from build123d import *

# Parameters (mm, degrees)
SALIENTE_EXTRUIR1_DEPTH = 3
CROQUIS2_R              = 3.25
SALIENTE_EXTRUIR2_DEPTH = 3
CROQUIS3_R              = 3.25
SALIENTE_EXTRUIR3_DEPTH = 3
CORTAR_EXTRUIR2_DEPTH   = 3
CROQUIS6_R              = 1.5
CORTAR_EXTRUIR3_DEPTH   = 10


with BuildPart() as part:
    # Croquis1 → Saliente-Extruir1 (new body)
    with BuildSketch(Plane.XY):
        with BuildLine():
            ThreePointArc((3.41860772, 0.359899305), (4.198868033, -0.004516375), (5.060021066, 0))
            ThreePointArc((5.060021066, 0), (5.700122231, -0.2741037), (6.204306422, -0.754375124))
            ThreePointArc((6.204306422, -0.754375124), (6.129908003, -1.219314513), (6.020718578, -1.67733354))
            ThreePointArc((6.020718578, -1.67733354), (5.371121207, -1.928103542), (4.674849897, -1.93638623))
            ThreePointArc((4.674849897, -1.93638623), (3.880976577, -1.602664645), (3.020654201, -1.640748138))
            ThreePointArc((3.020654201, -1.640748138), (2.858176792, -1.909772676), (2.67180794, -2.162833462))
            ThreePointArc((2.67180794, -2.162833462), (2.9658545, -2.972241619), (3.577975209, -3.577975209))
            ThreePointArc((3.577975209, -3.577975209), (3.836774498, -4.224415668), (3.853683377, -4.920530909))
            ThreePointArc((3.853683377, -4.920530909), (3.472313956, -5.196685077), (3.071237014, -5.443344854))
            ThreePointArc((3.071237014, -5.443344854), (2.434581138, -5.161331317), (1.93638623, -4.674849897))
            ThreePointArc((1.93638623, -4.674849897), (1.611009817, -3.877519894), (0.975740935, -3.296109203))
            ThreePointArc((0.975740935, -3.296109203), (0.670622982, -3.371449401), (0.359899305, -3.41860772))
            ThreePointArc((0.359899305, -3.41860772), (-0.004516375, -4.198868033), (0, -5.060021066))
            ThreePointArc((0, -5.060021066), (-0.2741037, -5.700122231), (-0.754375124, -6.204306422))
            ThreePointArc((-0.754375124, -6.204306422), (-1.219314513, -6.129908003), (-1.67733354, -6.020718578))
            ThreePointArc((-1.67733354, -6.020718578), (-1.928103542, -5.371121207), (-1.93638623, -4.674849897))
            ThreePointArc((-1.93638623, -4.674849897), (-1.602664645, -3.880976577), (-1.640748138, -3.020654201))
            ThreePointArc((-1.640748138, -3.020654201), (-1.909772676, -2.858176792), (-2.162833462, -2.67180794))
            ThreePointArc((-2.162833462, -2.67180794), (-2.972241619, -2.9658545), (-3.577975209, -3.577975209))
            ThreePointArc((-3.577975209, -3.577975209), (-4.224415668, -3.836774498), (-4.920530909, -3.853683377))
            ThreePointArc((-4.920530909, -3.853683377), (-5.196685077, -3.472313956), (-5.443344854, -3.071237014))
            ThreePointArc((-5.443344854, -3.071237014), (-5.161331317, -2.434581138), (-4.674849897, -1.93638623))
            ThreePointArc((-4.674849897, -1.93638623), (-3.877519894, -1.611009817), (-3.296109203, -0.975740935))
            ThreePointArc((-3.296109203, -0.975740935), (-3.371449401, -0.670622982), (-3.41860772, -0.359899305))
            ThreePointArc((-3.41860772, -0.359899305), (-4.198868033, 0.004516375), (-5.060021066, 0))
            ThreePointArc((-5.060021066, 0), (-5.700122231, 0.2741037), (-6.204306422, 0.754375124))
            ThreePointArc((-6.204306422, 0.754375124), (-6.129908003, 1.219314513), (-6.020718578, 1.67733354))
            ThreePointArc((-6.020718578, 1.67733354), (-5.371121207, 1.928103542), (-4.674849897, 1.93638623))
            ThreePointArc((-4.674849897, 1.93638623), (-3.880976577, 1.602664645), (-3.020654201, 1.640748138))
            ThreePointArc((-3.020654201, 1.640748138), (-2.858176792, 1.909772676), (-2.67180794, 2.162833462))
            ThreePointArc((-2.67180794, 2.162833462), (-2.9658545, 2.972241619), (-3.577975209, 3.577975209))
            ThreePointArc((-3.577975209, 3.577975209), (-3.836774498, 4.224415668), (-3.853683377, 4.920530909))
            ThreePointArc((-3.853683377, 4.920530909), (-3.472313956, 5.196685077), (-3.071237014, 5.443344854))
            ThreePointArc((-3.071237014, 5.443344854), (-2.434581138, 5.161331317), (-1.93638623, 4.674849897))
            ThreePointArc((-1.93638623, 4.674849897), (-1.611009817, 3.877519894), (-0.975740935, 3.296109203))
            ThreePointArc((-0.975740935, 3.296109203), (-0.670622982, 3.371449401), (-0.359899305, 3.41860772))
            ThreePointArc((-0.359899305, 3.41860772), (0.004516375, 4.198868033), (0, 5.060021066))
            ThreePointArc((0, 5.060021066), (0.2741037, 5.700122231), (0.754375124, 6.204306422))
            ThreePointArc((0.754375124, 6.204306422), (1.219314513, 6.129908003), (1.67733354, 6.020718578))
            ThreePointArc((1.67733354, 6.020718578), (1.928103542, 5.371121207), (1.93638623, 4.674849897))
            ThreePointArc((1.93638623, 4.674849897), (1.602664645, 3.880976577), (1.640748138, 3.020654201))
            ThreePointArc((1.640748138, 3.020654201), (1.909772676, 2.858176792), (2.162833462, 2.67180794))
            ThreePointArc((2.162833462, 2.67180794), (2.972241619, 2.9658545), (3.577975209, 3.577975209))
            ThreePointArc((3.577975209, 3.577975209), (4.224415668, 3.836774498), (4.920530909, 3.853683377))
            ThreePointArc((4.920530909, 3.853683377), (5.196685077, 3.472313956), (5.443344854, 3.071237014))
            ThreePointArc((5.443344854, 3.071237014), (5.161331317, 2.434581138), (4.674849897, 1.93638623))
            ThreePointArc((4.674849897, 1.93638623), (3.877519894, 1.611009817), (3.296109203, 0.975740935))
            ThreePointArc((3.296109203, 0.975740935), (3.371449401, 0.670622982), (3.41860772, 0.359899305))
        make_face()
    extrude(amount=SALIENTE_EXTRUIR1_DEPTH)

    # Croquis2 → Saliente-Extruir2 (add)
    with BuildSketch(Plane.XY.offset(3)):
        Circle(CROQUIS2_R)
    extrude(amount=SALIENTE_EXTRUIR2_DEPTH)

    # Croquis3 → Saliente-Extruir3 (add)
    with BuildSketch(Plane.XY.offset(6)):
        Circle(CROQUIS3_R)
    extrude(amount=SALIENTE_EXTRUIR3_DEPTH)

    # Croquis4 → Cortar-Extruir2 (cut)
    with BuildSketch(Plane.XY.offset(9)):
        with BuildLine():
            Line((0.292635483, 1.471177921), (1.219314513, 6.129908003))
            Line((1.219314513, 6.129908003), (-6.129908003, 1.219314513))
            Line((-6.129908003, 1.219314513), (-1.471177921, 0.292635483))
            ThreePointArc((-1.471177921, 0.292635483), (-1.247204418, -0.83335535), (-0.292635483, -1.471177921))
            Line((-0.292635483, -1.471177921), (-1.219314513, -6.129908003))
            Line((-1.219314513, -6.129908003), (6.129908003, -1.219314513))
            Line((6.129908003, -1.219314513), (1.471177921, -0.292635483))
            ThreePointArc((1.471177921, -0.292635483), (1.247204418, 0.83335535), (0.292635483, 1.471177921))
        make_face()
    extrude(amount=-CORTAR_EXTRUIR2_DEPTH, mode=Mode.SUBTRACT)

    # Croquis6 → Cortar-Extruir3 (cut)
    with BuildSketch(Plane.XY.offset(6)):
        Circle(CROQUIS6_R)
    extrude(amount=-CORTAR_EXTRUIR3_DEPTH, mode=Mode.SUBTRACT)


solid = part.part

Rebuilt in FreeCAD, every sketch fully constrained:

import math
import FreeCAD as App
import Part
import Sketcher
Q = App.Units.Quantity

doc = App.newDocument("Part")
body = doc.addObject("PartDesign::Body", "Body")

# Sketch on XY plane
sketch1 = body.newObject("Sketcher::SketchObject", "Sketch")
sketch1.AttachmentSupport = (doc.getObject("XY_Plane"), [""])
sketch1.MapMode = "FlatFace"
sketch1.addGeometry([
    Part.ArcOfCircle(Part.Circle(App.Vector(4.6, 1.9, 0), App.Vector(0, 0, 1), 2), math.radians(-128), math.radians(-77)),  # 0
    Part.ArcOfCircle(Part.Circle(App.Vector(0, 0, 0), App.Vector(0, 0, 1), 3.4), math.radians(6.01), math.radians(16.49)),  # 1
    Part.ArcOfCircle(Part.Circle(App.Vector(5, 0, 0), App.Vector(0, 0, 1), 2), math.radians(100), math.radians(150)),  # 2
    Part.ArcOfCircle(Part.Circle(App.Vector(3.5, 3.5, 0), App.Vector(0, 0, 1), 2), math.radians(-55), math.radians(-14)),  # 3
    Part.ArcOfCircle(Part.Circle(App.Vector(0, 0, 0), App.Vector(0, 0, 1), 6.2), math.radians(29.43), math.radians(38.07)),  # 4
    Part.ArcOfCircle(Part.Circle(App.Vector(4.6, 1.9, 0), App.Vector(0, 0, 1), 2), math.radians(81), math.radians(122)),  # 5
    Part.ArcOfCircle(Part.Circle(App.Vector(1.9, 4.6, 0), App.Vector(0, 0, 1), 2), math.radians(-83), math.radians(-32)),  # 6
    Part.ArcOfCircle(Part.Circle(App.Vector(0, 0, 0), App.Vector(0, 0, 1), 3.4), math.radians(51.01), math.radians(61.49)),  # 7
    Part.ArcOfCircle(Part.Circle(App.Vector(3.5, 3.5, 0), App.Vector(0, 0, 1), 2), math.radians(145), math.radians(195)),  # 8
    Part.ArcOfCircle(Part.Circle(App.Vector(0, 5, 0), App.Vector(0, 0, 1), 2), math.radians(-10), math.radians(31)),  # 9
    Part.ArcOfCircle(Part.Circle(App.Vector(0, 0, 0), App.Vector(0, 0, 1), 6.2), math.radians(74.43), math.radians(83.07)),  # 10
    Part.ArcOfCircle(Part.Circle(App.Vector(1.9, 4.6, 0), App.Vector(0, 0, 1), 2), math.radians(126), math.radians(167)),  # 11
    Part.ArcOfCircle(Part.Circle(App.Vector(-1.9, 4.6, 0), App.Vector(0, 0, 1), 2), math.radians(-38), math.radians(13)),  # 12
    Part.ArcOfCircle(Part.Circle(App.Vector(0, 0, 0), App.Vector(0, 0, 1), 3.4), math.radians(96.01), math.radians(106.49)),  # 13
    Part.ArcOfCircle(Part.Circle(App.Vector(0, 5, 0), App.Vector(0, 0, 1), 2), math.radians(-170), math.radians(-120)),  # 14
    Part.ArcOfCircle(Part.Circle(App.Vector(-3.5, 3.5, 0), App.Vector(0, 0, 1), 2), math.radians(35), math.radians(76)),  # 15
    Part.ArcOfCircle(Part.Circle(App.Vector(0, 0, 0), App.Vector(0, 0, 1), 6.2), math.radians(119.43), math.radians(128.07)),  # 16
    Part.ArcOfCircle(Part.Circle(App.Vector(-1.9, 4.6, 0), App.Vector(0, 0, 1), 2), math.radians(171), math.radians(212)),  # 17
    Part.ArcOfCircle(Part.Circle(App.Vector(-4.6, 1.9, 0), App.Vector(0, 0, 1), 2), math.radians(7), math.radians(58)),  # 18
    Part.ArcOfCircle(Part.Circle(App.Vector(0, 0, 0), App.Vector(0, 0, 1), 3.4), math.radians(141.01), math.radians(151.49)),  # 19
    Part.ArcOfCircle(Part.Circle(App.Vector(-3.5, 3.5, 0), App.Vector(0, 0, 1), 2), math.radians(-125), math.radians(-75)),  # 20
    Part.ArcOfCircle(Part.Circle(App.Vector(-5, 0, 0), App.Vector(0, 0, 1), 2), math.radians(80), math.radians(121)),  # 21
    Part.ArcOfCircle(Part.Circle(App.Vector(0, 0, 0), App.Vector(0, 0, 1), 6.2), math.radians(164.43), math.radians(173.07)),  # 22
    Part.ArcOfCircle(Part.Circle(App.Vector(-4.6, 1.9, 0), App.Vector(0, 0, 1), 2), math.radians(-144), math.radians(-103)),  # 23
    Part.ArcOfCircle(Part.Circle(App.Vector(-4.6, -1.9, 0), App.Vector(0, 0, 1), 2), math.radians(52), math.radians(103)),  # 24
    Part.ArcOfCircle(Part.Circle(App.Vector(0, 0, 0), App.Vector(0, 0, 1), 3.4), math.radians(-173.99), math.radians(-163.51)),  # 25
    Part.ArcOfCircle(Part.Circle(App.Vector(-5, 0, 0), App.Vector(0, 0, 1), 2), math.radians(-80), math.radians(-30)),  # 26
    Part.ArcOfCircle(Part.Circle(App.Vector(-3.5, -3.5, 0), App.Vector(0, 0, 1), 2), math.radians(125), math.radians(166)),  # 27
    Part.ArcOfCircle(Part.Circle(App.Vector(0, 0, 0), App.Vector(0, 0, 1), 6.2), math.radians(-150.57), math.radians(-141.93)),  # 28
    Part.ArcOfCircle(Part.Circle(App.Vector(-4.6, -1.9, 0), App.Vector(0, 0, 1), 2), math.radians(-99), math.radians(-58)),  # 29
    Part.ArcOfCircle(Part.Circle(App.Vector(-1.9, -4.6, 0), App.Vector(0, 0, 1), 2), math.radians(97), math.radians(148)),  # 30
    Part.ArcOfCircle(Part.Circle(App.Vector(0, 0, 0), App.Vector(0, 0, 1), 3.4), math.radians(-128.99), math.radians(-118.51)),  # 31
    Part.ArcOfCircle(Part.Circle(App.Vector(-3.5, -3.5, 0), App.Vector(0, 0, 1), 2), math.radians(-35), math.radians(15)),  # 32
    Part.ArcOfCircle(Part.Circle(App.Vector(0, -5, 0), App.Vector(0, 0, 1), 2), math.radians(170), math.radians(211)),  # 33
    Part.ArcOfCircle(Part.Circle(App.Vector(0, 0, 0), App.Vector(0, 0, 1), 6.2), math.radians(-105.57), math.radians(-96.93)),  # 34
    Part.ArcOfCircle(Part.Circle(App.Vector(-1.9, -4.6, 0), App.Vector(0, 0, 1), 2), math.radians(-54), math.radians(-13)),  # 35
    Part.ArcOfCircle(Part.Circle(App.Vector(1.9, -4.6, 0), App.Vector(0, 0, 1), 2), math.radians(142), math.radians(193)),  # 36
    Part.ArcOfCircle(Part.Circle(App.Vector(0, 0, 0), App.Vector(0, 0, 1), 3.4), math.radians(-83.99), math.radians(-73.51)),  # 37
    Part.ArcOfCircle(Part.Circle(App.Vector(0, -5, 0), App.Vector(0, 0, 1), 2), math.radians(10), math.radians(60)),  # 38
    Part.ArcOfCircle(Part.Circle(App.Vector(3.5, -3.5, 0), App.Vector(0, 0, 1), 2), math.radians(-145), math.radians(-104)),  # 39
    Part.ArcOfCircle(Part.Circle(App.Vector(0, 0, 0), App.Vector(0, 0, 1), 6.2), math.radians(-60.57), math.radians(-51.93)),  # 40
    Part.ArcOfCircle(Part.Circle(App.Vector(1.9, -4.6, 0), App.Vector(0, 0, 1), 2), math.radians(-9), math.radians(32)),  # 41
    Part.ArcOfCircle(Part.Circle(App.Vector(4.6, -1.9, 0), App.Vector(0, 0, 1), 2), math.radians(-173), math.radians(-122)),  # 42
    Part.ArcOfCircle(Part.Circle(App.Vector(0, 0, 0), App.Vector(0, 0, 1), 3.4), math.radians(-38.99), math.radians(-28.51)),  # 43
    Part.ArcOfCircle(Part.Circle(App.Vector(3.5, -3.5, 0), App.Vector(0, 0, 1), 2), math.radians(55), math.radians(105)),  # 44
    Part.ArcOfCircle(Part.Circle(App.Vector(5, 0, 0), App.Vector(0, 0, 1), 2), math.radians(-100), math.radians(-59)),  # 45
    Part.ArcOfCircle(Part.Circle(App.Vector(0, 0, 0), App.Vector(0, 0, 1), 6.2), math.radians(-15.57), math.radians(-6.93)),  # 46
    Part.ArcOfCircle(Part.Circle(App.Vector(4.6, -1.9, 0), App.Vector(0, 0, 1), 2), math.radians(36), math.radians(77)),  # 47
], False)
sketch1.addConstraint([
    Sketcher.Constraint("Coincident", 0, 1, 1, 1),
    Sketcher.Constraint("Coincident", 1, 2, 2, 2),
    Sketcher.Constraint("Coincident", 2, 1, 3, 1),
    Sketcher.Constraint("Coincident", 3, 2, 4, 1),
    Sketcher.Constraint("Coincident", 4, 2, 5, 1),
    Sketcher.Constraint("Coincident", 5, 2, 6, 2),
    Sketcher.Constraint("Coincident", 6, 1, 7, 1),
    Sketcher.Constraint("Coincident", 7, 2, 8, 2),
    Sketcher.Constraint("Coincident", 8, 1, 9, 1),
    Sketcher.Constraint("Coincident", 9, 2, 10, 1),
    Sketcher.Constraint("Coincident", 10, 2, 11, 1),
    Sketcher.Constraint("Coincident", 11, 2, 12, 2),
    Sketcher.Constraint("Coincident", 12, 1, 13, 1),
    Sketcher.Constraint("Coincident", 13, 2, 14, 2),
    Sketcher.Constraint("Coincident", 14, 1, 15, 1),
    Sketcher.Constraint("Coincident", 15, 2, 16, 1),
    Sketcher.Constraint("Coincident", 16, 2, 17, 1),
    Sketcher.Constraint("Coincident", 17, 2, 18, 2),
    Sketcher.Constraint("Coincident", 18, 1, 19, 1),
    Sketcher.Constraint("Coincident", 19, 2, 20, 2),
    Sketcher.Constraint("Coincident", 20, 1, 21, 1),
    Sketcher.Constraint("Coincident", 21, 2, 22, 1),
    Sketcher.Constraint("Coincident", 22, 2, 23, 1),
    Sketcher.Constraint("Coincident", 23, 2, 24, 2),
    Sketcher.Constraint("Coincident", 24, 1, 25, 1),
    Sketcher.Constraint("Coincident", 25, 2, 26, 2),
    Sketcher.Constraint("Coincident", 26, 1, 27, 1),
    Sketcher.Constraint("Coincident", 27, 2, 28, 1),
    Sketcher.Constraint("Coincident", 28, 2, 29, 1),
    Sketcher.Constraint("Coincident", 29, 2, 30, 2),
    Sketcher.Constraint("Coincident", 30, 1, 31, 1),
    Sketcher.Constraint("Coincident", 31, 2, 32, 2),
    Sketcher.Constraint("Coincident", 32, 1, 33, 1),
    Sketcher.Constraint("Coincident", 33, 2, 34, 1),
    Sketcher.Constraint("Coincident", 34, 2, 35, 1),
    Sketcher.Constraint("Coincident", 35, 2, 36, 2),
    Sketcher.Constraint("Coincident", 36, 1, 37, 1),
    Sketcher.Constraint("Coincident", 37, 2, 38, 2),
    Sketcher.Constraint("Coincident", 38, 1, 39, 1),
    Sketcher.Constraint("Coincident", 39, 2, 40, 1),
    Sketcher.Constraint("Coincident", 40, 2, 41, 1),
    Sketcher.Constraint("Coincident", 41, 2, 42, 2),
    Sketcher.Constraint("Coincident", 42, 1, 43, 1),
    Sketcher.Constraint("Coincident", 43, 2, 44, 2),
    Sketcher.Constraint("Coincident", 44, 1, 45, 1),
    Sketcher.Constraint("Coincident", 45, 2, 46, 1),
    Sketcher.Constraint("Coincident", 46, 2, 47, 1),
    Sketcher.Constraint("Coincident", 47, 2, 0, 2),
    Sketcher.Constraint("Coincident", 1, 3, -1, 1),
    Sketcher.Constraint("Coincident", 4, 3, -1, 1),
    Sketcher.Constraint("Coincident", 7, 3, -1, 1),
    Sketcher.Constraint("Coincident", 10, 3, -1, 1),
    Sketcher.Constraint("Coincident", 13, 3, -1, 1),
    Sketcher.Constraint("Coincident", 16, 3, -1, 1),
    Sketcher.Constraint("Coincident", 19, 3, -1, 1),
    Sketcher.Constraint("Coincident", 22, 3, -1, 1),
    Sketcher.Constraint("Coincident", 25, 3, -1, 1),
    Sketcher.Constraint("Coincident", 28, 3, -1, 1),
    Sketcher.Constraint("Coincident", 31, 3, -1, 1),
    Sketcher.Constraint("Coincident", 34, 3, -1, 1),
    Sketcher.Constraint("Coincident", 37, 3, -1, 1),
    Sketcher.Constraint("Coincident", 40, 3, -1, 1),
    Sketcher.Constraint("Coincident", 43, 3, -1, 1),
    Sketcher.Constraint("Coincident", 46, 3, -1, 1),
    Sketcher.Constraint("Coincident", 5, 3, 0, 3),
    Sketcher.Constraint("Coincident", 8, 3, 3, 3),
    Sketcher.Constraint("Coincident", 11, 3, 6, 3),
    Sketcher.Constraint("Coincident", 14, 3, 9, 3),
    Sketcher.Constraint("Coincident", 17, 3, 12, 3),
    Sketcher.Constraint("Coincident", 20, 3, 15, 3),
    Sketcher.Constraint("Coincident", 23, 3, 18, 3),
    Sketcher.Constraint("Coincident", 26, 3, 21, 3),
    Sketcher.Constraint("Coincident", 29, 3, 24, 3),
    Sketcher.Constraint("Coincident", 32, 3, 27, 3),
    Sketcher.Constraint("Coincident", 35, 3, 30, 3),
    Sketcher.Constraint("Coincident", 38, 3, 33, 3),
    Sketcher.Constraint("Coincident", 41, 3, 36, 3),
    Sketcher.Constraint("Coincident", 44, 3, 39, 3),
    Sketcher.Constraint("Coincident", 45, 3, 2, 3),
    Sketcher.Constraint("Coincident", 47, 3, 42, 3),
    Sketcher.Constraint("Equal", 0, 2),
    Sketcher.Constraint("Equal", 2, 3),
    Sketcher.Constraint("Equal", 3, 5),
    Sketcher.Constraint("Equal", 5, 6),
    Sketcher.Constraint("Equal", 1, 7),
    Sketcher.Constraint("Equal", 6, 8),
    Sketcher.Constraint("Equal", 8, 9),
    Sketcher.Constraint("Equal", 4, 10),
    Sketcher.Constraint("Equal", 9, 11),
    Sketcher.Constraint("Equal", 11, 12),
    Sketcher.Constraint("Equal", 7, 13),
    Sketcher.Constraint("Equal", 12, 14),
    Sketcher.Constraint("Equal", 14, 15),
    Sketcher.Constraint("Equal", 10, 16),
    Sketcher.Constraint("Equal", 15, 17),
    Sketcher.Constraint("Equal", 17, 18),
    Sketcher.Constraint("Equal", 13, 19),
    Sketcher.Constraint("Equal", 18, 20),
    Sketcher.Constraint("Equal", 20, 21),
    Sketcher.Constraint("Equal", 16, 22),
    Sketcher.Constraint("Equal", 21, 23),
    Sketcher.Constraint("Equal", 23, 24),
    Sketcher.Constraint("Equal", 19, 25),
    Sketcher.Constraint("Equal", 24, 26),
    Sketcher.Constraint("Equal", 26, 27),
    Sketcher.Constraint("Equal", 22, 28),
    Sketcher.Constraint("Equal", 27, 29),
    Sketcher.Constraint("Equal", 29, 30),
    Sketcher.Constraint("Equal", 25, 31),
    Sketcher.Constraint("Equal", 30, 32),
    Sketcher.Constraint("Equal", 32, 33),
    Sketcher.Constraint("Equal", 28, 34),
    Sketcher.Constraint("Equal", 33, 35),
    Sketcher.Constraint("Equal", 35, 36),
    Sketcher.Constraint("Equal", 31, 37),
    Sketcher.Constraint("Equal", 36, 38),
    Sketcher.Constraint("Equal", 38, 39),
    Sketcher.Constraint("Equal", 34, 40),
    Sketcher.Constraint("Equal", 39, 41),
    Sketcher.Constraint("Equal", 41, 42),
    Sketcher.Constraint("Equal", 37, 43),
    Sketcher.Constraint("Equal", 42, 44),
    Sketcher.Constraint("Equal", 44, 45),
    Sketcher.Constraint("Equal", 40, 46),
    Sketcher.Constraint("Equal", 45, 47),
    Sketcher.Constraint("Symmetric", 2, 3, 21, 3, -1, 1),
    Sketcher.Constraint("Symmetric", 0, 3, 24, 3, -1, 1),
    Sketcher.Constraint("Symmetric", 3, 3, 27, 3, -1, 1),
    Sketcher.Constraint("Symmetric", 6, 3, 30, 3, -1, 1),
    Sketcher.Constraint("Symmetric", 9, 3, 33, 3, -1, 1),
    Sketcher.Constraint("Symmetric", 12, 3, 36, 3, -1, 1),
    Sketcher.Constraint("Symmetric", 15, 3, 39, 3, -1, 1),
    Sketcher.Constraint("Symmetric", 18, 3, 42, 3, -1, 1),
    Sketcher.Constraint("Symmetric", 6, 3, 12, 3, -2),
    Sketcher.Constraint("Symmetric", 3, 3, 15, 3, -2),
    Sketcher.Constraint("Symmetric", 0, 3, 18, 3, -2),
    Sketcher.Constraint("PointOnObject", 2, 3, -1),
    Sketcher.Constraint("PointOnObject", 9, 3, -2),
    Sketcher.Constraint("Radius", 4, Q("6.25 mm")),
    Sketcher.Constraint("DistanceX", -1, 1, 2, 3, Q("5 mm")),
    Sketcher.Constraint("DistanceY", -1, 1, 9, 3, Q("5 mm")),
    Sketcher.Constraint("Radius", 1, Q("3.4375 mm")),
    Sketcher.Constraint("Radius", 0, Q("1.963495 mm")),
    Sketcher.Constraint("DistanceY", -1, 1, 0, 1, Q("0.359899 mm")),
    Sketcher.Constraint("DistanceX", 12, 1, -1, 1, Q("0.359899 mm")),
    Sketcher.Constraint("DistanceX", -1, 1, 2, 1, Q("4.67485 mm")),
    Sketcher.Constraint("DistanceX", -1, 1, 4, 2, Q("4.920531 mm")),
    Sketcher.Constraint("DistanceX", -1, 1, 7, 2, Q("1.640748 mm")),
    Sketcher.Constraint("DistanceY", -1, 1, 11, 2, Q("5.060021 mm")),
])
pad1 = body.newObject("PartDesign::Pad", "Pad")
pad1.Profile = sketch1
pad1.Length = 3

# Sketch on XY plane
sketch2 = body.newObject("Sketcher::SketchObject", "Sketch001")
sketch2.AttachmentSupport = (doc.getObject("XY_Plane"), [""])
sketch2.MapMode = "FlatFace"
sketch2.AttachmentOffset = App.Placement(App.Vector(0, 0, 3), App.Rotation())
sketch2.addGeometry(Part.Circle(App.Vector(0, 0, 0), App.Vector(0, 0, 1), 3.2), False)
sketch2.addConstraint([
    Sketcher.Constraint("Coincident", 0, 3, -1, 1),
    Sketcher.Constraint("Diameter", 0, Q("6.5 mm")),
])
pad2 = body.newObject("PartDesign::Pad", "Pad001")
pad2.Profile = sketch2
pad2.Length = 3

# Sketch on XY plane
sketch3 = body.newObject("Sketcher::SketchObject", "Sketch002")
sketch3.AttachmentSupport = (doc.getObject("XY_Plane"), [""])
sketch3.MapMode = "FlatFace"
sketch3.AttachmentOffset = App.Placement(App.Vector(0, 0, 6), App.Rotation())
sketch3.addGeometry(Part.Circle(App.Vector(0, 0, 0), App.Vector(0, 0, 1), 3.2), False)
sketch3.addConstraint([
    Sketcher.Constraint("Coincident", 0, 3, -1, 1),
    Sketcher.Constraint("Diameter", 0, Q("6.5 mm")),
])
pad3 = body.newObject("PartDesign::Pad", "Pad002")
pad3.Profile = sketch3
pad3.Length = 3

# Sketch on XY plane
sketch4 = body.newObject("Sketcher::SketchObject", "Sketch003")
sketch4.AttachmentSupport = (doc.getObject("XY_Plane"), [""])
sketch4.MapMode = "FlatFace"
sketch4.AttachmentOffset = App.Placement(App.Vector(0, 0, 9), App.Rotation())
sketch4.addGeometry([
    Part.LineSegment(App.Vector(0.3, 1.5, 0), App.Vector(1.2, 6.1, 0)),  # 0
    Part.LineSegment(App.Vector(1.2, 6.1, 0), App.Vector(-6.1, 1.2, 0)),  # 1
    Part.LineSegment(App.Vector(-6.1, 1.2, 0), App.Vector(-1.5, 0.3, 0)),  # 2
    Part.ArcOfCircle(Part.Circle(App.Vector(0, 0, 0), App.Vector(0, 0, 1), 1.5), math.radians(169), math.radians(259)),  # 3
    Part.LineSegment(App.Vector(-0.3, -1.5, 0), App.Vector(-1.2, -6.1, 0)),  # 4
    Part.LineSegment(App.Vector(-1.2, -6.1, 0), App.Vector(6.1, -1.2, 0)),  # 5
    Part.LineSegment(App.Vector(6.1, -1.2, 0), App.Vector(1.5, -0.3, 0)),  # 6
    Part.ArcOfCircle(Part.Circle(App.Vector(0, 0, 0), App.Vector(0, 0, 1), 1.5), math.radians(-11), math.radians(79)),  # 7
], False)
sketch4.addConstraint([
    Sketcher.Constraint("Coincident", 0, 2, 1, 1),
    Sketcher.Constraint("Coincident", 1, 2, 2, 1),
    Sketcher.Constraint("Coincident", 2, 2, 3, 1),
    Sketcher.Constraint("Coincident", 3, 2, 4, 1),
    Sketcher.Constraint("Coincident", 4, 2, 5, 1),
    Sketcher.Constraint("Coincident", 5, 2, 6, 1),
    Sketcher.Constraint("Coincident", 6, 2, 7, 1),
    Sketcher.Constraint("Coincident", 7, 2, 0, 1),
    Sketcher.Constraint("Coincident", 3, 3, -1, 1),
    Sketcher.Constraint("Coincident", 7, 3, -1, 1),
    Sketcher.Constraint("Equal", 3, 7),
    Sketcher.Constraint("Symmetric", 0, 2, 4, 2, -1, 1),
    Sketcher.Constraint("Symmetric", 1, 2, 5, 2, -1, 1),
    Sketcher.Constraint("Perpendicular", 0, 2),
    Sketcher.Constraint("Perpendicular", 2, 4),
    Sketcher.Constraint("Perpendicular", 4, 6),
    Sketcher.Constraint("Equal", 0, 2),
    Sketcher.Constraint("Radius", 3, Q("1.5 mm")),
    Sketcher.Constraint("Angle", 0, Q("78.75 deg")),
    Sketcher.Constraint("Angle", 1, Q("-146.25 deg")),
    Sketcher.Constraint("Distance", 0, Q("4.75 mm")),
    Sketcher.Constraint("DistanceY", -1, 1, 0, 2, Q("6.129908 mm")),
])
pocket1 = body.newObject("PartDesign::Pocket", "Pocket")
pocket1.Profile = sketch4
pocket1.Length = 3

# Sketch on XY plane
sketch5 = body.newObject("Sketcher::SketchObject", "Sketch004")
sketch5.AttachmentSupport = (doc.getObject("XY_Plane"), [""])
sketch5.MapMode = "FlatFace"
sketch5.AttachmentOffset = App.Placement(App.Vector(0, 0, 6), App.Rotation())
sketch5.addGeometry(Part.Circle(App.Vector(0, 0, 0), App.Vector(0, 0, 1), 1.5), False)
sketch5.addConstraint([
    Sketcher.Constraint("Coincident", 0, 3, -1, 1),
    Sketcher.Constraint("Diameter", 0, Q("3 mm")),
])
pocket2 = body.newObject("PartDesign::Pocket", "Pocket001")
pocket2.Profile = sketch5
pocket2.Length = 10

doc.recompute()
